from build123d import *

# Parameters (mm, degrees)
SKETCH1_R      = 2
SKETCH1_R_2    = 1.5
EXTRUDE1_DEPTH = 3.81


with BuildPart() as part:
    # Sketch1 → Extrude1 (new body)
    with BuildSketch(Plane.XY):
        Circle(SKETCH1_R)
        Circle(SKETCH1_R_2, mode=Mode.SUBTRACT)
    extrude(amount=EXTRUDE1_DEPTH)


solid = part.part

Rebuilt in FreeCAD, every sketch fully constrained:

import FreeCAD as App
import Part
import Sketcher
from FreeCAD import Vector

doc = App.newDocument("Part")
body = doc.addObject("PartDesign::Body", "Body")

# Sketch on XY plane
sketch1 = doc.addObject("Sketcher::SketchObject", "Sketch")
body.addObject(sketch1)
sketch1.AttachmentSupport = (doc.XY_Plane, [""])
sketch1.MapMode = "FlatFace"
sketch1.addGeometry(Part.Circle(Vector(0, 0, 0), Vector(0, 0, 1), 2), False)
sketch1.addGeometry(Part.Circle(Vector(0, 0, 0), Vector(0, 0, 1), 1.5), False)
sketch1.addConstraint(Sketcher.Constraint("Coincident", 0, 3, -1, 1))
sketch1.addConstraint(Sketcher.Constraint("Coincident", 1, 3, -1, 1))
sketch1.addConstraint(Sketcher.Constraint("Diameter", 0, 4.0))
sketch1.addConstraint(Sketcher.Constraint("Diameter", 1, 3.0))
pad1 = doc.addObject("PartDesign::Pad", "Pad")
body.addObject(pad1)
pad1.Profile = sketch1
pad1.Length = 3.81

doc.recompute()
